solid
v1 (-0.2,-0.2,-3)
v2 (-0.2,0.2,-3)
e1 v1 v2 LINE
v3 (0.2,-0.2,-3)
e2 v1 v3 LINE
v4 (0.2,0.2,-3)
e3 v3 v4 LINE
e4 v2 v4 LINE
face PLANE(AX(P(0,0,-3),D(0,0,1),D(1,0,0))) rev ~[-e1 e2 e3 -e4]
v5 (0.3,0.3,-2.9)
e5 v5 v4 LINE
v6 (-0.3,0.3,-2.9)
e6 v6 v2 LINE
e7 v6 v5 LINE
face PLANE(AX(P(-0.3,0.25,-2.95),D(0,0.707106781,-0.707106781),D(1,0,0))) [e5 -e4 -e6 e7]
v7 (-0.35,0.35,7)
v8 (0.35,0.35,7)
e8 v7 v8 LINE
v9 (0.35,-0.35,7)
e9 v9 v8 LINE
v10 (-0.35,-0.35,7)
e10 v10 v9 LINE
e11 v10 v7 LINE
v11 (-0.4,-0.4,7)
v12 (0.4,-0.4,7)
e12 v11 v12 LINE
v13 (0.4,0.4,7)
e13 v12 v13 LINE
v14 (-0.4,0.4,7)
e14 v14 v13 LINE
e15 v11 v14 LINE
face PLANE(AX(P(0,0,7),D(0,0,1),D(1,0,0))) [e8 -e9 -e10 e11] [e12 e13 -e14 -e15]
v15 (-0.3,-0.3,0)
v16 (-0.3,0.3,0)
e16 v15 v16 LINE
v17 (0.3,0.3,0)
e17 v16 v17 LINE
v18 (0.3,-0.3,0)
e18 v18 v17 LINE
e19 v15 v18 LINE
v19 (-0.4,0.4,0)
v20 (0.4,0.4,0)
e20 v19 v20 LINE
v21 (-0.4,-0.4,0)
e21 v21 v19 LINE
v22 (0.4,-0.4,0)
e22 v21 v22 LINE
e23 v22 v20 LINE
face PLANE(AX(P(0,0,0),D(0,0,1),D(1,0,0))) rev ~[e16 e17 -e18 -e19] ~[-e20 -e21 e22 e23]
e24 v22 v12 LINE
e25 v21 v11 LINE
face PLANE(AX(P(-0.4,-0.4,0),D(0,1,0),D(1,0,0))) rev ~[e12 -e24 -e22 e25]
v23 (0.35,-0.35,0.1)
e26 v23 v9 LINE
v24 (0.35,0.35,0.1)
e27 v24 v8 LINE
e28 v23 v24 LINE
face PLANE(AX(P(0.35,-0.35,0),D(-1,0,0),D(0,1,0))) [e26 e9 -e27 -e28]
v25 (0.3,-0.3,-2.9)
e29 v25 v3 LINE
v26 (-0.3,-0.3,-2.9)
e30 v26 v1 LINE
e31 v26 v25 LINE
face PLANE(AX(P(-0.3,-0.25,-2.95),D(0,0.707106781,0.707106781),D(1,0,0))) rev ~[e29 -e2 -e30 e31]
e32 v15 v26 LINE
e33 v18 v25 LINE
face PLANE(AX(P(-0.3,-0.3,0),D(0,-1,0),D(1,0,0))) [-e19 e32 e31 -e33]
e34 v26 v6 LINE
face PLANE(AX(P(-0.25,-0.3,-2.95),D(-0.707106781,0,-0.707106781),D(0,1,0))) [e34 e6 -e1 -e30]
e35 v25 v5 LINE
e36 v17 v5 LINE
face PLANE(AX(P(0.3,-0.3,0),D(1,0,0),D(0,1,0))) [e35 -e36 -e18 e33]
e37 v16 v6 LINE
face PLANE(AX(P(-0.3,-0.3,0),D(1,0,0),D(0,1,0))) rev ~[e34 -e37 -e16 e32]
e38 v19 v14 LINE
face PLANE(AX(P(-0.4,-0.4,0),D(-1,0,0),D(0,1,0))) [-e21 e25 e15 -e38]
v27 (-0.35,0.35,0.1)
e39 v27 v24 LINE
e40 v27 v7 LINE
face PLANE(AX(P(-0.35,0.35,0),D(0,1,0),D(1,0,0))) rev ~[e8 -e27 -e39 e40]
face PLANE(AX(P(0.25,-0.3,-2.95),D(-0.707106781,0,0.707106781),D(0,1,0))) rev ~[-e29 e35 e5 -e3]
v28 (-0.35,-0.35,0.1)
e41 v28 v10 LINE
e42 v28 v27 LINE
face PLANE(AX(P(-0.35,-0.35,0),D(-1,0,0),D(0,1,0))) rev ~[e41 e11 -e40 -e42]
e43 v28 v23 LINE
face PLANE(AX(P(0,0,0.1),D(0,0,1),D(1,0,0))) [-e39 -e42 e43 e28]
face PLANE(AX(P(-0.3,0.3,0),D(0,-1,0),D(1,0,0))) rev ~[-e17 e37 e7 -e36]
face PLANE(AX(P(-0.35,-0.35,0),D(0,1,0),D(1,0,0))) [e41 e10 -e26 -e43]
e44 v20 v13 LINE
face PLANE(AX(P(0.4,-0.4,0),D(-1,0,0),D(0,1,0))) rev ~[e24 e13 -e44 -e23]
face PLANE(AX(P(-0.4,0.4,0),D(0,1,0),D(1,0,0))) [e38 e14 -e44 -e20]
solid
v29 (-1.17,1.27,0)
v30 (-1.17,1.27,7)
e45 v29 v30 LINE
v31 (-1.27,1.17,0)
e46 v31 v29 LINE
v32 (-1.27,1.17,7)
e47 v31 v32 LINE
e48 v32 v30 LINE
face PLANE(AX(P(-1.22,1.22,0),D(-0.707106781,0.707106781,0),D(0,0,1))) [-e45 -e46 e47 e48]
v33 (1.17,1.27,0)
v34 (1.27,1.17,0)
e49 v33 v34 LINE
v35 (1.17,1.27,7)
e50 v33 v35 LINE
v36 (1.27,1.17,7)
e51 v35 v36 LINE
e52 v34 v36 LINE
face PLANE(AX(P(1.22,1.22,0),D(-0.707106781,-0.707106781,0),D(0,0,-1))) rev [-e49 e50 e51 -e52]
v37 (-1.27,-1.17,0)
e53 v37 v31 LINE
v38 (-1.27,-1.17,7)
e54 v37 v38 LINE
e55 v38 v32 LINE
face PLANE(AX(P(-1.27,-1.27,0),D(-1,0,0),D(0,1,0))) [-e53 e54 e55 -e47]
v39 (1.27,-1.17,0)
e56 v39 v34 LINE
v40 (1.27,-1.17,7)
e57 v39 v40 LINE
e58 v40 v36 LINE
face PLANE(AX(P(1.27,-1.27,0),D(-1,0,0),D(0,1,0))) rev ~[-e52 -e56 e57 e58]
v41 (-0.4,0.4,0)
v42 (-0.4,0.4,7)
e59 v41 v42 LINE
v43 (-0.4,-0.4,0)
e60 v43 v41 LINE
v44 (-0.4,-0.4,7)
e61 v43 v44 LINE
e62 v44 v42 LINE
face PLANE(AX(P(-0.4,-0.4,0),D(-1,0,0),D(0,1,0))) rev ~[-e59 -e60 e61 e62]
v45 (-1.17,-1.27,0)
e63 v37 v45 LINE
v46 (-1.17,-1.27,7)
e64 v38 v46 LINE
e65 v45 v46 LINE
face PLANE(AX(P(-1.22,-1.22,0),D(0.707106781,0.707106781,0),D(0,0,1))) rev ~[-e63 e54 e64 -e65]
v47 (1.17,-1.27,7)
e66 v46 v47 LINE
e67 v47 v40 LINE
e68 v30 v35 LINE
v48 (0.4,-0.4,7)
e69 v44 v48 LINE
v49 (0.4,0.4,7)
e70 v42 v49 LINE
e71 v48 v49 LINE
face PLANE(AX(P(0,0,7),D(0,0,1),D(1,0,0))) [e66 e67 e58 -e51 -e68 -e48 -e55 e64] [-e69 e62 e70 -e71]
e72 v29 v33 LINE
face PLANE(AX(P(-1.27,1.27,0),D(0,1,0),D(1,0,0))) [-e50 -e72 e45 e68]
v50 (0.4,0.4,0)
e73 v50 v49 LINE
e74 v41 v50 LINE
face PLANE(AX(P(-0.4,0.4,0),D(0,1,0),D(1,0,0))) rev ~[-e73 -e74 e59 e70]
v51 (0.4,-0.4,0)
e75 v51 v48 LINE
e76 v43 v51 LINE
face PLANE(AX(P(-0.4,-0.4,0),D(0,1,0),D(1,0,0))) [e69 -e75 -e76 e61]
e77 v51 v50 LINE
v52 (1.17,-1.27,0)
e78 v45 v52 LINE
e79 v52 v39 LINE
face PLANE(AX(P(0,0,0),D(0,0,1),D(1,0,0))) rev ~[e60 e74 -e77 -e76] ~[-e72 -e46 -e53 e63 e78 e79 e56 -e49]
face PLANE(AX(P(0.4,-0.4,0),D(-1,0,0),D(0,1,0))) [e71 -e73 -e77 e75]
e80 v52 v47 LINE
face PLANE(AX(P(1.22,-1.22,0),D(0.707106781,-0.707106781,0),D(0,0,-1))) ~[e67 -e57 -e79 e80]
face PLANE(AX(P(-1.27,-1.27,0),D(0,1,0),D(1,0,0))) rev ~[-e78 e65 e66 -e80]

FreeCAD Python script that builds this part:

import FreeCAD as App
import Part
import Sketcher

V = App.Vector
Q = App.Units.Quantity


def edges_at(feature, points):
    """Names of the edges that pass closest to the given points."""
    edges = feature.Shape.Edges
    near = lambda p: min(range(len(edges)), key=lambda i: edges[i].distToShape(Part.Vertex(*p))[0])
    return sorted({f"Edge{near(p) + 1}" for p in points})

doc = App.newDocument("Part")
body = doc.addObject("PartDesign::Body", "Body")

sketch1 = body.newObject("Sketcher::SketchObject", "Sketch")
sketch1.AttachmentSupport = (doc.getObject("XY_Plane"), [""])
sketch1.MapMode = "FlatFace"
sketch1.addGeometry(Part.LineSegment(V(-1.3, 1.3, 0), V(-1.3, -1.3, 0)), False)
sketch1.addGeometry(Part.LineSegment(V(-1.3, -1.3, 0), V(1.3, -1.3, 0)), False)
sketch1.addGeometry(Part.LineSegment(V(1.3, -1.3, 0), V(1.3, 1.3, 0)), False)
sketch1.addGeometry(Part.LineSegment(V(1.3, 1.3, 0), V(-1.3, 1.3, 0)), False)
sketch1.addGeometry(Part.LineSegment(V(0.4, -0.4, 0), V(-0.4, -0.4, 0)), False)
sketch1.addGeometry(Part.LineSegment(V(-0.4, -0.4, 0), V(-0.4, 0.4, 0)), False)
sketch1.addGeometry(Part.LineSegment(V(-0.4, 0.4, 0), V(0.4, 0.4, 0)), False)
sketch1.addGeometry(Part.LineSegment(V(0.4, 0.4, 0), V(0.4, -0.4, 0)), False)
sketch1.addConstraint(Sketcher.Constraint("Coincident", 0, 2, 1, 1))
sketch1.addConstraint(Sketcher.Constraint("Coincident", 1, 2, 2, 1))
sketch1.addConstraint(Sketcher.Constraint("Coincident", 2, 2, 3, 1))
sketch1.addConstraint(Sketcher.Constraint("Coincident", 3, 2, 0, 1))
sketch1.addConstraint(Sketcher.Constraint("Coincident", 4, 2, 5, 1))
sketch1.addConstraint(Sketcher.Constraint("Coincident", 5, 2, 6, 1))
sketch1.addConstraint(Sketcher.Constraint("Coincident", 6, 2, 7, 1))
sketch1.addConstraint(Sketcher.Constraint("Coincident", 7, 2, 4, 1))
sketch1.addConstraint(Sketcher.Constraint("Vertical", 0))
sketch1.addConstraint(Sketcher.Constraint("Horizontal", 1))
sketch1.addConstraint(Sketcher.Constraint("Vertical", 2))
sketch1.addConstraint(Sketcher.Constraint("Horizontal", 3))
sketch1.addConstraint(Sketcher.Constraint("Horizontal", 4))
sketch1.addConstraint(Sketcher.Constraint("Vertical", 5))
sketch1.addConstraint(Sketcher.Constraint("Horizontal", 6))
sketch1.addConstraint(Sketcher.Constraint("Vertical", 7))
sketch1.addConstraint(Sketcher.Constraint("Symmetric", 0, 2, 2, 2, -1, 1))
sketch1.addConstraint(Sketcher.Constraint("Symmetric", 4, 2, 6, 2, -1, 1))
sketch1.addConstraint(Sketcher.Constraint("Equal", 3, 0))
sketch1.addConstraint(Sketcher.Constraint("Equal", 6, 5))
sketch1.addConstraint(Sketcher.Constraint("DistanceX", 4, 2, 4, 1, Q("0.8 mm")))
sketch1.addConstraint(Sketcher.Constraint("DistanceX", 1, 1, 1, 2, Q("2.54 mm")))
pad1 = body.newObject("PartDesign::Pad", "Pad")
pad1.Profile = sketch1
pad1.Length = 7
doc.recompute()

chamfer = body.newObject("PartDesign::Chamfer", "Chamfer")
chamfer.Base = (pad1, edges_at(pad1, [
    (1.27, -1.27, 3.5),
    (-1.27, -1.27, 3.5),
    (-1.27, 1.27, 3.5),
    (1.27, 1.27, 3.5),
]))
chamfer.Size = 0.1
body2 = doc.addObject("PartDesign::Body", "Body001")

sketch2 = body2.newObject("Sketcher::SketchObject", "Sketch001")
sketch2.AttachmentSupport = (doc.getObject("XY_Plane001"), [""])
sketch2.MapMode = "FlatFace"
sketch2.addGeometry(Part.LineSegment(V(-0.4, 0.4, 0), V(-0.4, -0.4, 0)), False)
sketch2.addGeometry(Part.LineSegment(V(-0.4, -0.4, 0), V(0.4, -0.4, 0)), False)
sketch2.addGeometry(Part.LineSegment(V(0.4, -0.4, 0), V(0.4, 0.4, 0)), False)
sketch2.addGeometry(Part.LineSegment(V(0.4, 0.4, 0), V(-0.4, 0.4, 0)), False)
sketch2.addGeometry(Part.LineSegment(V(0.3, -0.3, 0), V(-0.3, -0.3, 0)), False)
sketch2.addGeometry(Part.LineSegment(V(-0.3, -0.3, 0), V(-0.3, 0.3, 0)), False)
sketch2.addGeometry(Part.LineSegment(V(-0.3, 0.3, 0), V(0.3, 0.3, 0)), False)
sketch2.addGeometry(Part.LineSegment(V(0.3, 0.3, 0), V(0.3, -0.3, 0)), False)
sketch2.addConstraint(Sketcher.Constraint("Coincident", 0, 2, 1, 1))
sketch2.addConstraint(Sketcher.Constraint("Coincident", 1, 2, 2, 1))
sketch2.addConstraint(Sketcher.Constraint("Coincident", 2, 2, 3, 1))
sketch2.addConstraint(Sketcher.Constraint("Coincident", 3, 2, 0, 1))
sketch2.addConstraint(Sketcher.Constraint("Coincident", 4, 2, 5, 1))
sketch2.addConstraint(Sketcher.Constraint("Coincident", 5, 2, 6, 1))
sketch2.addConstraint(Sketcher.Constraint("Coincident", 6, 2, 7, 1))
sketch2.addConstraint(Sketcher.Constraint("Coincident", 7, 2, 4, 1))
sketch2.addConstraint(Sketcher.Constraint("Vertical", 0))
sketch2.addConstraint(Sketcher.Constraint("Horizontal", 1))
sketch2.addConstraint(Sketcher.Constraint("Vertical", 2))
sketch2.addConstraint(Sketcher.Constraint("Horizontal", 3))
sketch2.addConstraint(Sketcher.Constraint("Horizontal", 4))
sketch2.addConstraint(Sketcher.Constraint("Vertical", 5))
sketch2.addConstraint(Sketcher.Constraint("Horizontal", 6))
sketch2.addConstraint(Sketcher.Constraint("Vertical", 7))
sketch2.addConstraint(Sketcher.Constraint("Symmetric", 0, 2, 2, 2, -1, 1))
sketch2.addConstraint(Sketcher.Constraint("Symmetric", 4, 2, 6, 2, -1, 1))
sketch2.addConstraint(Sketcher.Constraint("Equal", 3, 0))
sketch2.addConstraint(Sketcher.Constraint("Equal", 6, 5))
sketch2.addConstraint(Sketcher.Constraint("DistanceX", 1, 1, 1, 2, Q("0.8 mm")))
sketch2.addConstraint(Sketcher.Constraint("DistanceX", 4, 2, 4, 1, Q("0.7 mm")))
pad2 = body2.newObject("PartDesign::Pad", "Pad001")
pad2.Profile = sketch2
pad2.Length = 7

sketch3 = body2.newObject("Sketcher::SketchObject", "Sketch002")
sketch3.AttachmentSupport = (doc.getObject("XY_Plane001"), [""])
sketch3.MapMode = "FlatFace"
sketch3.addGeometry(Part.LineSegment(V(-0.3, 0.3, 0), V(-0.3, -0.3, 0)), False)
sketch3.addGeometry(Part.LineSegment(V(-0.3, -0.3, 0), V(0.3, -0.3, 0)), False)
sketch3.addGeometry(Part.LineSegment(V(0.3, -0.3, 0), V(0.3, 0.3, 0)), False)
sketch3.addGeometry(Part.LineSegment(V(0.3, 0.3, 0), V(-0.3, 0.3, 0)), False)
sketch3.addGeometry(Part.LineSegment(V(0.3, -0.3, 0), V(-0.3, -0.3, 0)), False)
sketch3.addGeometry(Part.LineSegment(V(-0.3, -0.3, 0), V(-0.3, 0.3, 0)), False)
sketch3.addGeometry(Part.LineSegment(V(-0.3, 0.3, 0), V(0.3, 0.3, 0)), False)
sketch3.addGeometry(Part.LineSegment(V(0.3, 0.3, 0), V(0.3, -0.3, 0)), False)
sketch3.addConstraint(Sketcher.Constraint("Coincident", 0, 2, 1, 1))
sketch3.addConstraint(Sketcher.Constraint("Coincident", 1, 2, 2, 1))
sketch3.addConstraint(Sketcher.Constraint("Coincident", 2, 2, 3, 1))
sketch3.addConstraint(Sketcher.Constraint("Coincident", 3, 2, 0, 1))
sketch3.addConstraint(Sketcher.Constraint("Coincident", 4, 2, 5, 1))
sketch3.addConstraint(Sketcher.Constraint("Coincident", 5, 2, 6, 1))
sketch3.addConstraint(Sketcher.Constraint("Coincident", 6, 2, 7, 1))
sketch3.addConstraint(Sketcher.Constraint("Coincident", 7, 2, 4, 1))
sketch3.addConstraint(Sketcher.Constraint("Vertical", 0))
sketch3.addConstraint(Sketcher.Constraint("Horizontal", 1))
sketch3.addConstraint(Sketcher.Constraint("Vertical", 2))
sketch3.addConstraint(Sketcher.Constraint("Horizontal", 3))
sketch3.addConstraint(Sketcher.Constraint("Horizontal", 4))
sketch3.addConstraint(Sketcher.Constraint("Vertical", 5))
sketch3.addConstraint(Sketcher.Constraint("Horizontal", 6))
sketch3.addConstraint(Sketcher.Constraint("Vertical", 7))
sketch3.addConstraint(Sketcher.Constraint("Symmetric", 0, 2, 2, 2, -1, 1))
sketch3.addConstraint(Sketcher.Constraint("Symmetric", 4, 2, 6, 2, -1, 1))
sketch3.addConstraint(Sketcher.Constraint("Equal", 3, 0))
sketch3.addConstraint(Sketcher.Constraint("Equal", 6, 5))
sketch3.addConstraint(Sketcher.Constraint("DistanceX", 1, 1, 1, 2, Q("0.7 mm")))
sketch3.addConstraint(Sketcher.Constraint("DistanceX", 4, 2, 4, 1, Q("0.6 mm")))
pad3 = body2.newObject("PartDesign::Pad", "Pad002")
pad3.Profile = sketch3
pad3.Length = 0.1

sketch4 = body2.newObject("Sketcher::SketchObject", "Sketch003")
sketch4.AttachmentSupport = (doc.getObject("XY_Plane001"), [""])
sketch4.MapMode = "FlatFace"
sketch4.addGeometry(Part.LineSegment(V(-0.3, 0.3, 0), V(-0.3, -0.3, 0)), False)
sketch4.addGeometry(Part.LineSegment(V(-0.3, -0.3, 0), V(0.3, -0.3, 0)), False)
sketch4.addGeometry(Part.LineSegment(V(0.3, -0.3, 0), V(0.3, 0.3, 0)), False)
sketch4.addGeometry(Part.LineSegment(V(0.3, 0.3, 0), V(-0.3, 0.3, 0)), False)
sketch4.addConstraint(Sketcher.Constraint("Coincident", 0, 2, 1, 1))
sketch4.addConstraint(Sketcher.Constraint("Coincident", 1, 2, 2, 1))
sketch4.addConstraint(Sketcher.Constraint("Coincident", 2, 2, 3, 1))
sketch4.addConstraint(Sketcher.Constraint("Coincident", 3, 2, 0, 1))
sketch4.addConstraint(Sketcher.Constraint("Vertical", 0))
sketch4.addConstraint(Sketcher.Constraint("Horizontal", 1))
sketch4.addConstraint(Sketcher.Constraint("Vertical", 2))
sketch4.addConstraint(Sketcher.Constraint("Horizontal", 3))
sketch4.addConstraint(Sketcher.Constraint("Symmetric", 0, 2, 2, 2, -1, 1))
sketch4.addConstraint(Sketcher.Constraint("Equal", 3, 0))
sketch4.addConstraint(Sketcher.Constraint("DistanceX", 1, 1, 1, 2, Q("0.6 mm")))
pad4 = body2.newObject("PartDesign::Pad", "Pad003")
pad4.Profile = sketch4
pad4.Type = "TwoLengths"
pad4.Length = 3
pad4.Length2 = 0.1
pad4.Reversed = True
doc.recompute()

chamfer2 = body2.newObject("PartDesign::Chamfer", "Chamfer001")
chamfer2.Base = (pad4, edges_at(pad4, [
    (0.3, 0, -3),
    (0, 0.3, -3),
    (-0.3, 0, -3),
    (0, -0.3, -3),
]))
chamfer2.Size = 0.1

doc.recompute()
